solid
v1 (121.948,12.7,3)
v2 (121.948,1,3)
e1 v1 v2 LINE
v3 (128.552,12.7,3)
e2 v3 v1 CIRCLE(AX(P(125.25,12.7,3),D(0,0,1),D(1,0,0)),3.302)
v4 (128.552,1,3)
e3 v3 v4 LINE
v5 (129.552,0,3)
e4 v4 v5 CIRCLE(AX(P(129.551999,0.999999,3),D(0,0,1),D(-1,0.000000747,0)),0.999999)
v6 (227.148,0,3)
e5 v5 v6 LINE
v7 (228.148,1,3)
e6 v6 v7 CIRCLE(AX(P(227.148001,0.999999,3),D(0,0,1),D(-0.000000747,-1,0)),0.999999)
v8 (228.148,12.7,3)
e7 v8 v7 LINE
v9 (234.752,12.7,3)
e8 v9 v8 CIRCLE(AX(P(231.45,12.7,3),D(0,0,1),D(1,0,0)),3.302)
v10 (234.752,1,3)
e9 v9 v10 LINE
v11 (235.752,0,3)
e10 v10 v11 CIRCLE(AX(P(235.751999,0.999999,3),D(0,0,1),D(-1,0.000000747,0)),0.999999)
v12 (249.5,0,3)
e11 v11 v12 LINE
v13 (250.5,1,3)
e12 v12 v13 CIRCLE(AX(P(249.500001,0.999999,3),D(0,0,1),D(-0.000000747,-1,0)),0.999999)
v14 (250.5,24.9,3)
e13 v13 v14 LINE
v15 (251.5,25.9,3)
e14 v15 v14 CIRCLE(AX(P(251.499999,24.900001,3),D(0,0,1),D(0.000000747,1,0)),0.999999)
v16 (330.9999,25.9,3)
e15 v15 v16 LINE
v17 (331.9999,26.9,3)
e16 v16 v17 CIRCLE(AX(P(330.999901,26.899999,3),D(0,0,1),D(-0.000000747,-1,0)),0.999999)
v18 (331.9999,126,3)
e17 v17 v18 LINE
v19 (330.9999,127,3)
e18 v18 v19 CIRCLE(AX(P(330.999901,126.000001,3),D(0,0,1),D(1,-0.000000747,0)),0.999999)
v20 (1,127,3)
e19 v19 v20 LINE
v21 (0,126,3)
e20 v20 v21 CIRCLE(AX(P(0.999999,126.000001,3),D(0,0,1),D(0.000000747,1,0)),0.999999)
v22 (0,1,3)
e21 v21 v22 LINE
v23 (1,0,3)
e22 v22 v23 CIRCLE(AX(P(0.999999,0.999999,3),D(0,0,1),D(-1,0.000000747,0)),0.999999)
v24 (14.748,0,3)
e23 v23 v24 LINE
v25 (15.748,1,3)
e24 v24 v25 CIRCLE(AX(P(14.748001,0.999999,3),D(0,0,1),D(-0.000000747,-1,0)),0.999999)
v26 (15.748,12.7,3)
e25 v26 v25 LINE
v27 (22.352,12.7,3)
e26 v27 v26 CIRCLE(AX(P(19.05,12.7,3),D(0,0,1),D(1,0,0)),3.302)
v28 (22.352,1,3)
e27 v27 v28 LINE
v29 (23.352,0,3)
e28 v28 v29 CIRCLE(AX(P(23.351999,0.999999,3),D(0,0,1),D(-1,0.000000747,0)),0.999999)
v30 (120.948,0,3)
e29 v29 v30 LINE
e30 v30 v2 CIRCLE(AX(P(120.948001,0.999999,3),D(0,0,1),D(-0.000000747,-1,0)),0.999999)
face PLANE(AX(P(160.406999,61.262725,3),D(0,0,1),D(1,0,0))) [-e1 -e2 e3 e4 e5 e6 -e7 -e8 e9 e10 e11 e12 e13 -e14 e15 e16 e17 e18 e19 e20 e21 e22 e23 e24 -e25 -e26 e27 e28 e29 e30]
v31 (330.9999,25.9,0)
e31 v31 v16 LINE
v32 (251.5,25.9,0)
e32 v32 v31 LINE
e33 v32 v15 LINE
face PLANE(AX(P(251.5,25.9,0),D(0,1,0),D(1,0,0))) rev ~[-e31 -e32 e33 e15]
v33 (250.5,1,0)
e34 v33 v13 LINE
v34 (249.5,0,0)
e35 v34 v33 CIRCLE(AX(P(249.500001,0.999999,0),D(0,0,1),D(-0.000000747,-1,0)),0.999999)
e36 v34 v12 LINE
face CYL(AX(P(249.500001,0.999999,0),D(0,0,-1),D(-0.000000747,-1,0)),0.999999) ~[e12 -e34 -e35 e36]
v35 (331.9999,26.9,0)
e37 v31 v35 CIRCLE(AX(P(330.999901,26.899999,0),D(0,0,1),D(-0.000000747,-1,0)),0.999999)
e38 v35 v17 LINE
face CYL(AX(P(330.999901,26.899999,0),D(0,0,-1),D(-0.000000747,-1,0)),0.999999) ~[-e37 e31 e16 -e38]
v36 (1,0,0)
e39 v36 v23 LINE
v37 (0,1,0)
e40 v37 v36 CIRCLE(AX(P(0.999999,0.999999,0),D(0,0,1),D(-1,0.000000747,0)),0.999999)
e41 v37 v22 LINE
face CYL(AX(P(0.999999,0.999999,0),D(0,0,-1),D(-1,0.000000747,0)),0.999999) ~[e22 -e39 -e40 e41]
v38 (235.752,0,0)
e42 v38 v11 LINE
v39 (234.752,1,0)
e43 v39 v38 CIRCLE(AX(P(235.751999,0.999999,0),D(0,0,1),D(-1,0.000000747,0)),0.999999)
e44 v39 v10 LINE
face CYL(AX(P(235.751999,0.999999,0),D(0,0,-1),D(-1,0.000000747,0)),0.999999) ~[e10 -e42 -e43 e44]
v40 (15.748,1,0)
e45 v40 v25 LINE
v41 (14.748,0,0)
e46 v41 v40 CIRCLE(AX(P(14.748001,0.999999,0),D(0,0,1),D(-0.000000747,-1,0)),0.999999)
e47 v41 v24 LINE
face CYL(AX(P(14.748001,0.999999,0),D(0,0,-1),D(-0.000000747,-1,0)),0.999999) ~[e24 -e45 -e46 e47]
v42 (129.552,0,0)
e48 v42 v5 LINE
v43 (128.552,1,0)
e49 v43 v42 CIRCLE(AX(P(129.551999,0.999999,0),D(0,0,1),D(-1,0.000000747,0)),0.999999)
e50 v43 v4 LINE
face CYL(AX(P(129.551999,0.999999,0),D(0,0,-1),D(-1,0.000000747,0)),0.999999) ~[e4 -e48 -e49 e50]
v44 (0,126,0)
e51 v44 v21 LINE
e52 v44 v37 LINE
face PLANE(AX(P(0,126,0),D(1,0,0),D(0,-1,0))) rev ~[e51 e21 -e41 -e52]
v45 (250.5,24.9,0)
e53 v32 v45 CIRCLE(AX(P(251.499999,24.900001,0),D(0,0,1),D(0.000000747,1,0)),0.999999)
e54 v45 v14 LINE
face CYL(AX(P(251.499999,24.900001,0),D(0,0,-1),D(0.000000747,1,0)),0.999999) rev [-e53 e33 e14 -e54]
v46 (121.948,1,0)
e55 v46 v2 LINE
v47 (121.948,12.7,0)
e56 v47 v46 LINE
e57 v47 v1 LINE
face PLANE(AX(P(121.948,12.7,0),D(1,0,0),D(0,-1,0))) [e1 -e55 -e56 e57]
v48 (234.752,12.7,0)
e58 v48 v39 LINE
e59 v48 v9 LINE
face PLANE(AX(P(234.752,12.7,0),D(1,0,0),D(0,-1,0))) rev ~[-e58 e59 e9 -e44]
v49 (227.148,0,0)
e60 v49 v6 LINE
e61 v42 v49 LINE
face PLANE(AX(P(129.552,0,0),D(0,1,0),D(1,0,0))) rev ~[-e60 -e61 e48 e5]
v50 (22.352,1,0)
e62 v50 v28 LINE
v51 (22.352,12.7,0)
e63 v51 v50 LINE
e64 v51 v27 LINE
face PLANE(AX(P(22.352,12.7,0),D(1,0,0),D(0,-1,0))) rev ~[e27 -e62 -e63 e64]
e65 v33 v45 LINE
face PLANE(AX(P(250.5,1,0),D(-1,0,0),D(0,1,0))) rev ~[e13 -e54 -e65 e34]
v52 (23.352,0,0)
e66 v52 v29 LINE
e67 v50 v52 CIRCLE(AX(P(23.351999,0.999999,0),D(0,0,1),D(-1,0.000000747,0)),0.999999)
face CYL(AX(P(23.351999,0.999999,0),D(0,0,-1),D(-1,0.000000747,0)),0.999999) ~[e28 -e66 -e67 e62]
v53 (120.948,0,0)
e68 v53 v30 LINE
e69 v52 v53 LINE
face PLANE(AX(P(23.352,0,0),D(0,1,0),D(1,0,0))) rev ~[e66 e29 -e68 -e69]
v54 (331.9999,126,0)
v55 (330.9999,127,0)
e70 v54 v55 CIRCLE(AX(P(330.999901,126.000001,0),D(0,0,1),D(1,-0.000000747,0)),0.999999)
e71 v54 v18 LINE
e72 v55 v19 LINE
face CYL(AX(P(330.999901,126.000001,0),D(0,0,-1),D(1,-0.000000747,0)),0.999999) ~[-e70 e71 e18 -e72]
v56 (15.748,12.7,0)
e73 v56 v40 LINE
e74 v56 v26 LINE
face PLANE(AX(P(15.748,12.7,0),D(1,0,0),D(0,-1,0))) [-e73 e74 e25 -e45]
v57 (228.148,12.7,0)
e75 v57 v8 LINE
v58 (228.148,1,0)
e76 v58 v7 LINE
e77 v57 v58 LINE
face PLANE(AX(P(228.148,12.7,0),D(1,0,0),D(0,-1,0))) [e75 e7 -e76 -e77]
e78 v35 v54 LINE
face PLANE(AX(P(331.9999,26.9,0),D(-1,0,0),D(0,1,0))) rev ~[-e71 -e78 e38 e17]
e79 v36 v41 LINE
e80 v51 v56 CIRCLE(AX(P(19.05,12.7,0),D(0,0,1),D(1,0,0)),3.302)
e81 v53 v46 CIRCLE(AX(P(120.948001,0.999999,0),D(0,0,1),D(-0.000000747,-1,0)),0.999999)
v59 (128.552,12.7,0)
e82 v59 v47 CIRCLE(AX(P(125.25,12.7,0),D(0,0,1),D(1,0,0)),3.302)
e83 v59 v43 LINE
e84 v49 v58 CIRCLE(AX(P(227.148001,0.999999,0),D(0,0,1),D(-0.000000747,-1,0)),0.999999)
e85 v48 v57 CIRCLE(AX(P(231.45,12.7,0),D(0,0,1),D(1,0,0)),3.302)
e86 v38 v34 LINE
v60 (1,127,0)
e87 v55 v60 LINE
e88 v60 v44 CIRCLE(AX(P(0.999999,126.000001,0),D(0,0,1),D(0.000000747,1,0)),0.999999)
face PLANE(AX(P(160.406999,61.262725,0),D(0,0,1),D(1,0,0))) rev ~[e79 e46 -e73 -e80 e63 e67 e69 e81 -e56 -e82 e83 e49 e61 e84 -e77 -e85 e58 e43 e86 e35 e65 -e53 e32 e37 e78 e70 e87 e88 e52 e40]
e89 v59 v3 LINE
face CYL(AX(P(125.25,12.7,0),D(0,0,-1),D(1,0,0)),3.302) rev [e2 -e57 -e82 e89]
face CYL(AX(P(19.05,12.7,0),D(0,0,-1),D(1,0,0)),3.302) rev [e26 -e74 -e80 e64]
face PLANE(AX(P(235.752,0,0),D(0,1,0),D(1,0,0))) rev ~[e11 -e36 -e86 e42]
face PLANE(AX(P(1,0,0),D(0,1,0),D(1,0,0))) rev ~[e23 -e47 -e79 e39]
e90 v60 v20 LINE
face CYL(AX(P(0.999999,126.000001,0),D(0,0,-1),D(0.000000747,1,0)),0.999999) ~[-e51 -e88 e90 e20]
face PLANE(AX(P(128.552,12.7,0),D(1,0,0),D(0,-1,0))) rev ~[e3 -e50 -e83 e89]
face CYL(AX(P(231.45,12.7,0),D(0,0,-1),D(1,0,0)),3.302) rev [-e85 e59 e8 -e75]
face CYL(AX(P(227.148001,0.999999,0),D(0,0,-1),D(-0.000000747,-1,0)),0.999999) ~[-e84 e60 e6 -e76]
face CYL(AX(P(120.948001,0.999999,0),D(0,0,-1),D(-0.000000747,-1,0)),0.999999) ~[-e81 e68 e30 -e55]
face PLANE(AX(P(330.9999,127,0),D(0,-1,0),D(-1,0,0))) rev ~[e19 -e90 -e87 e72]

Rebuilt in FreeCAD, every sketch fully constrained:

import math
import FreeCAD as App
import Part
import Sketcher

doc = App.newDocument("Part")
body = doc.addObject("PartDesign::Body", "Body")

# Sketch on XY plane
sketch1 = body.newObject("Sketcher::SketchObject", "Sketch")
sketch1.AttachmentSupport = (doc.getObject("XY_Plane"), [""])
sketch1.MapMode = "FlatFace"
sketch1.addGeometry(Part.LineSegment(App.Vector(0, 126, 0), App.Vector(0, 1, 0)), False)
sketch1.addGeometry(Part.ArcOfCircle(Part.Circle(App.Vector(0.999999, 0.999999, 0), App.Vector(0, 0, 1), 0.999999), math.radians(179.999957), math.radians(270.000043)), False)
sketch1.addGeometry(Part.LineSegment(App.Vector(1, 0, 0), App.Vector(14.748, 0, 0)), False)
sketch1.addGeometry(Part.ArcOfCircle(Part.Circle(App.Vector(14.748001, 0.999999, 0), App.Vector(0, 0, 1), 0.999999), math.radians(-90.000043), math.radians(0.000043)), False)
sketch1.addGeometry(Part.LineSegment(App.Vector(15.748, 1, 0), App.Vector(15.748, 12.7, 0)), False)
sketch1.addGeometry(Part.ArcOfCircle(Part.Circle(App.Vector(19.05, 12.7, 0), App.Vector(0, 0, 1), 3.302), math.radians(0), math.radians(180)), False)
sketch1.addGeometry(Part.LineSegment(App.Vector(22.352, 12.7, 0), App.Vector(22.352, 1, 0)), False)
sketch1.addGeometry(Part.ArcOfCircle(Part.Circle(App.Vector(23.351999, 0.999999, 0), App.Vector(0, 0, 1), 0.999999), math.radians(179.999957), math.radians(270.000043)), False)
sketch1.addGeometry(Part.LineSegment(App.Vector(23.352, 0, 0), App.Vector(120.948, 0, 0)), False)
sketch1.addGeometry(Part.ArcOfCircle(Part.Circle(App.Vector(120.948001, 0.999999, 0), App.Vector(0, 0, 1), 0.999999), math.radians(-90.000043), math.radians(0.000043)), False)
sketch1.addGeometry(Part.LineSegment(App.Vector(121.948, 1, 0), App.Vector(121.948, 12.7, 0)), False)
sketch1.addGeometry(Part.ArcOfCircle(Part.Circle(App.Vector(125.25, 12.7, 0), App.Vector(0, 0, 1), 3.302), math.radians(0), math.radians(180)), False)
sketch1.addGeometry(Part.LineSegment(App.Vector(128.552, 12.7, 0), App.Vector(128.552, 1, 0)), False)
sketch1.addGeometry(Part.ArcOfCircle(Part.Circle(App.Vector(129.551999, 0.999999, 0), App.Vector(0, 0, 1), 0.999999), math.radians(179.999957), math.radians(270.000043)), False)
sketch1.addGeometry(Part.LineSegment(App.Vector(129.552, 0, 0), App.Vector(227.148, 0, 0)), False)
sketch1.addGeometry(Part.ArcOfCircle(Part.Circle(App.Vector(227.148001, 0.999999, 0), App.Vector(0, 0, 1), 0.999999), math.radians(-90.000043), math.radians(0.000043)), False)
sketch1.addGeometry(Part.LineSegment(App.Vector(228.148, 1, 0), App.Vector(228.148, 12.7, 0)), False)
sketch1.addGeometry(Part.ArcOfCircle(Part.Circle(App.Vector(231.45, 12.7, 0), App.Vector(0, 0, 1), 3.302), math.radians(0), math.radians(180)), False)
sketch1.addGeometry(Part.LineSegment(App.Vector(234.752, 12.7, 0), App.Vector(234.752, 1, 0)), False)
sketch1.addGeometry(Part.ArcOfCircle(Part.Circle(App.Vector(235.751999, 0.999999, 0), App.Vector(0, 0, 1), 0.999999), math.radians(179.999957), math.radians(270.000043)), False)
sketch1.addGeometry(Part.LineSegment(App.Vector(235.752, 0, 0), App.Vector(249.5, 0, 0)), False)
sketch1.addGeometry(Part.ArcOfCircle(Part.Circle(App.Vector(249.500001, 0.999999, 0), App.Vector(0, 0, 1), 0.999999), math.radians(-90.000043), math.radians(0.000043)), False)
sketch1.addGeometry(Part.LineSegment(App.Vector(250.5, 1, 0), App.Vector(250.5, 24.9, 0)), False)
sketch1.addGeometry(Part.ArcOfCircle(Part.Circle(App.Vector(251.499999, 24.900001, 0), App.Vector(0, 0, 1), 0.999999), math.radians(89.999957), math.radians(180.000043)), False)
sketch1.addGeometry(Part.LineSegment(App.Vector(251.5, 25.9, 0), App.Vector(330.9999, 25.9, 0)), False)
sketch1.addGeometry(Part.ArcOfCircle(Part.Circle(App.Vector(330.999901, 26.899999, 0), App.Vector(0, 0, 1), 0.999999), math.radians(-90.000043), math.radians(0.000043)), False)
sketch1.addGeometry(Part.LineSegment(App.Vector(331.9999, 26.9, 0), App.Vector(331.9999, 126, 0)), False)
sketch1.addGeometry(Part.ArcOfCircle(Part.Circle(App.Vector(330.999901, 126.000001, 0), App.Vector(0, 0, 1), 0.999999), math.radians(-0.000043), math.radians(90.000043)), False)
sketch1.addGeometry(Part.LineSegment(App.Vector(330.9999, 127, 0), App.Vector(1, 127, 0)), False)
sketch1.addGeometry(Part.ArcOfCircle(Part.Circle(App.Vector(0.999999, 126.000001, 0), App.Vector(0, 0, 1), 0.999999), math.radians(89.999957), math.radians(180.000043)), False)
sketch1.addConstraint(Sketcher.Constraint("Tangent", 0, 2, 1, 1))
sketch1.addConstraint(Sketcher.Constraint("Tangent", 1, 2, 2, 1))
sketch1.addConstraint(Sketcher.Constraint("Tangent", 2, 2, 3, 1))
sketch1.addConstraint(Sketcher.Constraint("Tangent", 3, 2, 4, 1))
sketch1.addConstraint(Sketcher.Constraint("Tangent", 4, 2, 5, 2))
sketch1.addConstraint(Sketcher.Constraint("Tangent", 5, 1, 6, 1))
sketch1.addConstraint(Sketcher.Constraint("Tangent", 6, 2, 7, 1))
sketch1.addConstraint(Sketcher.Constraint("Tangent", 7, 2, 8, 1))
sketch1.addConstraint(Sketcher.Constraint("Tangent", 8, 2, 9, 1))
sketch1.addConstraint(Sketcher.Constraint("Tangent", 9, 2, 10, 1))
sketch1.addConstraint(Sketcher.Constraint("Tangent", 10, 2, 11, 2))
sketch1.addConstraint(Sketcher.Constraint("Tangent", 11, 1, 12, 1))
sketch1.addConstraint(Sketcher.Constraint("Tangent", 12, 2, 13, 1))
sketch1.addConstraint(Sketcher.Constraint("Tangent", 13, 2, 14, 1))
sketch1.addConstraint(Sketcher.Constraint("Tangent", 14, 2, 15, 1))
sketch1.addConstraint(Sketcher.Constraint("Tangent", 15, 2, 16, 1))
sketch1.addConstraint(Sketcher.Constraint("Tangent", 16, 2, 17, 2))
sketch1.addConstraint(Sketcher.Constraint("Tangent", 17, 1, 18, 1))
sketch1.addConstraint(Sketcher.Constraint("Tangent", 18, 2, 19, 1))
sketch1.addConstraint(Sketcher.Constraint("Tangent", 19, 2, 20, 1))
sketch1.addConstraint(Sketcher.Constraint("Tangent", 20, 2, 21, 1))
sketch1.addConstraint(Sketcher.Constraint("Tangent", 21, 2, 22, 1))
sketch1.addConstraint(Sketcher.Constraint("Tangent", 22, 2, 23, 2))
sketch1.addConstraint(Sketcher.Constraint("Tangent", 23, 1, 24, 1))
sketch1.addConstraint(Sketcher.Constraint("Tangent", 24, 2, 25, 1))
sketch1.addConstraint(Sketcher.Constraint("Tangent", 25, 2, 26, 1))
sketch1.addConstraint(Sketcher.Constraint("Tangent", 26, 2, 27, 1))
sketch1.addConstraint(Sketcher.Constraint("Tangent", 27, 2, 28, 1))
sketch1.addConstraint(Sketcher.Constraint("Tangent", 28, 2, 29, 1))
sketch1.addConstraint(Sketcher.Constraint("Tangent", 29, 2, 0, 1))
sketch1.addConstraint(Sketcher.Constraint("Vertical", 0))
sketch1.addConstraint(Sketcher.Constraint("Horizontal", 2))
sketch1.addConstraint(Sketcher.Constraint("Vertical", 4))
sketch1.addConstraint(Sketcher.Constraint("Vertical", 6))
sketch1.addConstraint(Sketcher.Constraint("Horizontal", 8))
sketch1.addConstraint(Sketcher.Constraint("Vertical", 10))
sketch1.addConstraint(Sketcher.Constraint("Vertical", 12))
sketch1.addConstraint(Sketcher.Constraint("Horizontal", 14))
sketch1.addConstraint(Sketcher.Constraint("Vertical", 16))
sketch1.addConstraint(Sketcher.Constraint("Vertical", 18))
sketch1.addConstraint(Sketcher.Constraint("Horizontal", 20))
sketch1.addConstraint(Sketcher.Constraint("Vertical", 22))
sketch1.addConstraint(Sketcher.Constraint("Horizontal", 24))
sketch1.addConstraint(Sketcher.Constraint("Vertical", 26))
sketch1.addConstraint(Sketcher.Constraint("Horizontal", 28))
sketch1.addConstraint(Sketcher.Constraint("Equal", 1, 3))
sketch1.addConstraint(Sketcher.Constraint("Equal", 3, 7))
sketch1.addConstraint(Sketcher.Constraint("Equal", 7, 9))
sketch1.addConstraint(Sketcher.Constraint("Equal", 5, 11))
sketch1.addConstraint(Sketcher.Constraint("Equal", 9, 13))
sketch1.addConstraint(Sketcher.Constraint("Equal", 13, 15))
sketch1.addConstraint(Sketcher.Constraint("Equal", 11, 17))
sketch1.addConstraint(Sketcher.Constraint("Equal", 15, 19))
sketch1.addConstraint(Sketcher.Constraint("Equal", 19, 21))
sketch1.addConstraint(Sketcher.Constraint("Equal", 21, 23))
sketch1.addConstraint(Sketcher.Constraint("Equal", 23, 25))
sketch1.addConstraint(Sketcher.Constraint("Equal", 25, 27))
sketch1.addConstraint(Sketcher.Constraint("Equal", 27, 29))
sketch1.addConstraint(Sketcher.Constraint("PointOnObject", 0, 2, -2))
sketch1.addConstraint(Sketcher.Constraint("PointOnObject", 1, 2, -1))
sketch1.addConstraint(Sketcher.Constraint("PointOnObject", 7, 2, -1))
sketch1.addConstraint(Sketcher.Constraint("PointOnObject", 13, 2, -1))
sketch1.addConstraint(Sketcher.Constraint("PointOnObject", 19, 2, -1))
sketch1.addConstraint(Sketcher.Constraint("Horizontal", 5, 3, 11, 3))
sketch1.addConstraint(Sketcher.Constraint("Horizontal", 11, 3, 17, 3))
sketch1.addConstraint(Sketcher.Constraint("Equal", 8, 14))
sketch1.addConstraint(Sketcher.Constraint("Equal", 2, 20))
sketch1.addConstraint(Sketcher.Constraint("Radius", 1, 0.999999))
sketch1.addConstraint(Sketcher.Constraint("DistanceY", 0, 2, 0, 1, 125.0))
sketch1.addConstraint(Sketcher.Constraint("DistanceY", 4, 1, 4, 2, 11.7))
sketch1.addConstraint(Sketcher.Constraint("DistanceY", 22, 1, 22, 2, 23.9))
sketch1.addConstraint(Sketcher.Constraint("Radius", 5, 3.302))
sketch1.addConstraint(Sketcher.Constraint("DistanceX", -1, 1, 21, 3, 249.500001))
sketch1.addConstraint(Sketcher.Constraint("DistanceX", 3, 3, 9, 3, 106.2))
sketch1.addConstraint(Sketcher.Constraint("DistanceX", 24, 1, 24, 2, 79.4999))
pad1 = body.newObject("PartDesign::Pad", "Pad")
pad1.Profile = sketch1
pad1.Length = 3

doc.recompute()
